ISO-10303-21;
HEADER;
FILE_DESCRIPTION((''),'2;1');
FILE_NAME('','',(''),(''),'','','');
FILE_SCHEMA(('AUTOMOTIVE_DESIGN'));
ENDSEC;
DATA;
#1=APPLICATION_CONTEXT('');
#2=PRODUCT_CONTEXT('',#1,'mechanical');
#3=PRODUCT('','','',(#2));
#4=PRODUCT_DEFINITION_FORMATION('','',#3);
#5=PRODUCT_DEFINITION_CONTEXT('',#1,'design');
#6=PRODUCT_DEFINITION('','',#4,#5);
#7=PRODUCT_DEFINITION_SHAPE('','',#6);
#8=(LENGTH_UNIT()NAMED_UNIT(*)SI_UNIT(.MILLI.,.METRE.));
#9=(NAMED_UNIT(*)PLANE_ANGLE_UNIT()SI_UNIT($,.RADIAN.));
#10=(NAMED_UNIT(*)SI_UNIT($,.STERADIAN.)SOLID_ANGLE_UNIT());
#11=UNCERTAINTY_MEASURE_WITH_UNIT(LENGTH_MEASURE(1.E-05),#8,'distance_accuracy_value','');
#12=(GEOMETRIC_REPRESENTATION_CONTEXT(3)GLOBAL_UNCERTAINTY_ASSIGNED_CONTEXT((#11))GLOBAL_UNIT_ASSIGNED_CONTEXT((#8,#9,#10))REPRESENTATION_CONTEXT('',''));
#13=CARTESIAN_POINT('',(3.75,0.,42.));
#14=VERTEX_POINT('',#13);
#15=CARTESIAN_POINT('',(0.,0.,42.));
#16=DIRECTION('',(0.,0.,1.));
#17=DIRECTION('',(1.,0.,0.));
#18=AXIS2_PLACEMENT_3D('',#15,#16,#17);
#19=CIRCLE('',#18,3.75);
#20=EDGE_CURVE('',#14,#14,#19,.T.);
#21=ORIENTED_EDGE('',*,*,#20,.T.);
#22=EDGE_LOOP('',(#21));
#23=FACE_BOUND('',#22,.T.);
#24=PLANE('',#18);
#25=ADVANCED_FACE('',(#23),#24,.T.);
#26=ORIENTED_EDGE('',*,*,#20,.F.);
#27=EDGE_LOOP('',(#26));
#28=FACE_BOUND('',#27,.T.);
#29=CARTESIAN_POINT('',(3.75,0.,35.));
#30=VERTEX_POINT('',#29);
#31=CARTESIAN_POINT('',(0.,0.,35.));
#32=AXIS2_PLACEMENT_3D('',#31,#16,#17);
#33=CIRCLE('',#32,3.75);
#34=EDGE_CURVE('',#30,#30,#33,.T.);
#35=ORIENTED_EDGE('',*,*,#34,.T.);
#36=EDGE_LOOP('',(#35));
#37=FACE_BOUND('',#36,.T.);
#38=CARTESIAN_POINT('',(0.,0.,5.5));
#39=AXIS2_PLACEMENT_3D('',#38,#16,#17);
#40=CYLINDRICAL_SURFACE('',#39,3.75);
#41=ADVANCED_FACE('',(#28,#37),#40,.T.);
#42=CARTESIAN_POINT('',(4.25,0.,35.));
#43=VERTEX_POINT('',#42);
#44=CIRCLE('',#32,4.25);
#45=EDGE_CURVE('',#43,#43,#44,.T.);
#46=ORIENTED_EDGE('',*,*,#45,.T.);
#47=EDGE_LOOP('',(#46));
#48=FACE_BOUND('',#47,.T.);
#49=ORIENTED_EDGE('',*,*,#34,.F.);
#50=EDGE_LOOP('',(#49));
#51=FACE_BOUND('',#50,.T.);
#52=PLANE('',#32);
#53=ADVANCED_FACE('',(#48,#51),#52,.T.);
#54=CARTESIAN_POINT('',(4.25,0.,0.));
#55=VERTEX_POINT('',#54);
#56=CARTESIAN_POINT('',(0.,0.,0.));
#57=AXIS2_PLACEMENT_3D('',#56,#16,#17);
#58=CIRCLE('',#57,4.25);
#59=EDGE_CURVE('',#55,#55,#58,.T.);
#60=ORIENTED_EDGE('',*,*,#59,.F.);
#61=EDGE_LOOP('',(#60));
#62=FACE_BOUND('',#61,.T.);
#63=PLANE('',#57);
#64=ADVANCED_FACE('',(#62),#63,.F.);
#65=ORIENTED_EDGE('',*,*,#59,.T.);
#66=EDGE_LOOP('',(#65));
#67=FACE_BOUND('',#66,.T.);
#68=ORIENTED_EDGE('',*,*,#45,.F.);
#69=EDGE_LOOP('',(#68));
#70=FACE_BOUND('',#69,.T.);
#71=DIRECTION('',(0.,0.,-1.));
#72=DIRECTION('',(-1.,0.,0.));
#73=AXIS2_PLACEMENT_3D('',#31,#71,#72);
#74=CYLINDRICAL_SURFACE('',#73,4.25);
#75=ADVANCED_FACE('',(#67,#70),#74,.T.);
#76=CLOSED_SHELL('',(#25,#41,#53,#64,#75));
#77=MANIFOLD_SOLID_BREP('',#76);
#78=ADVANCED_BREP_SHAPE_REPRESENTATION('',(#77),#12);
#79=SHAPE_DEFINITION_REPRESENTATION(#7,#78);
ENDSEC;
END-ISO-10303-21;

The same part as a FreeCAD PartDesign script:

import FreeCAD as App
import Part
import Sketcher
from FreeCAD import Vector

doc = App.newDocument("Part")
params = doc.addObject("Spreadsheet::Sheet", "Params")
for row, (alias, value) in enumerate([
    ("sketch1_diameter", "8.5 mm"),
    ("pad1_length", "35 mm"),
    ("sketch2_diameter", "7.5 mm"),
    ("pad2_length", "7 mm"),
    ("pad2_length2", "29.5 mm"),
], start=1):
    params.set(f"A{row}", alias)
    params.set(f"B{row}", "=" + value)
    params.setAlias(f"B{row}", alias)

body = doc.addObject("PartDesign::Body", "Body")

# Sketch on XY plane
sketch1 = body.newObject("Sketcher::SketchObject", "Sketch")
sketch1.AttachmentSupport = (doc.getObject("XY_Plane"), [""])
sketch1.MapMode = "FlatFace"
sketch1.addGeometry(Part.Circle(Vector(0, 0, 0), Vector(0, 0, 1), 4.2), False)
sketch1.addConstraint(Sketcher.Constraint("Coincident", 0, 3, -1, 1))
sketch1.addConstraint(Sketcher.Constraint("Diameter", 0, 8.5))
sketch1.setExpression("Constraints[1]", "Params.sketch1_diameter")
pad1 = body.newObject("PartDesign::Pad", "Pad")
pad1.Profile = sketch1
pad1.setExpression("Length", "Params.pad1_length")

# Sketch on XY plane
sketch2 = body.newObject("Sketcher::SketchObject", "Sketch001")
sketch2.AttachmentSupport = (doc.getObject("XY_Plane"), [""])
sketch2.MapMode = "FlatFace"
sketch2.AttachmentOffset = App.Placement(Vector(0, 0, 35), App.Rotation())
sketch2.addGeometry(Part.Circle(Vector(0, 0, 0), Vector(0, 0, 1), 3.8), False)
sketch2.addConstraint(Sketcher.Constraint("Coincident", 0, 3, -1, 1))
sketch2.addConstraint(Sketcher.Constraint("Diameter", 0, 7.5))
sketch2.setExpression("Constraints[1]", "Params.sketch2_diameter")
pad2 = body.newObject("PartDesign::Pad", "Pad001")
pad2.Profile = sketch2
pad2.Type = "TwoLengths"
pad2.setExpression("Length", "Params.pad2_length")
pad2.setExpression("Length2", "Params.pad2_length2")

doc.recompute()
